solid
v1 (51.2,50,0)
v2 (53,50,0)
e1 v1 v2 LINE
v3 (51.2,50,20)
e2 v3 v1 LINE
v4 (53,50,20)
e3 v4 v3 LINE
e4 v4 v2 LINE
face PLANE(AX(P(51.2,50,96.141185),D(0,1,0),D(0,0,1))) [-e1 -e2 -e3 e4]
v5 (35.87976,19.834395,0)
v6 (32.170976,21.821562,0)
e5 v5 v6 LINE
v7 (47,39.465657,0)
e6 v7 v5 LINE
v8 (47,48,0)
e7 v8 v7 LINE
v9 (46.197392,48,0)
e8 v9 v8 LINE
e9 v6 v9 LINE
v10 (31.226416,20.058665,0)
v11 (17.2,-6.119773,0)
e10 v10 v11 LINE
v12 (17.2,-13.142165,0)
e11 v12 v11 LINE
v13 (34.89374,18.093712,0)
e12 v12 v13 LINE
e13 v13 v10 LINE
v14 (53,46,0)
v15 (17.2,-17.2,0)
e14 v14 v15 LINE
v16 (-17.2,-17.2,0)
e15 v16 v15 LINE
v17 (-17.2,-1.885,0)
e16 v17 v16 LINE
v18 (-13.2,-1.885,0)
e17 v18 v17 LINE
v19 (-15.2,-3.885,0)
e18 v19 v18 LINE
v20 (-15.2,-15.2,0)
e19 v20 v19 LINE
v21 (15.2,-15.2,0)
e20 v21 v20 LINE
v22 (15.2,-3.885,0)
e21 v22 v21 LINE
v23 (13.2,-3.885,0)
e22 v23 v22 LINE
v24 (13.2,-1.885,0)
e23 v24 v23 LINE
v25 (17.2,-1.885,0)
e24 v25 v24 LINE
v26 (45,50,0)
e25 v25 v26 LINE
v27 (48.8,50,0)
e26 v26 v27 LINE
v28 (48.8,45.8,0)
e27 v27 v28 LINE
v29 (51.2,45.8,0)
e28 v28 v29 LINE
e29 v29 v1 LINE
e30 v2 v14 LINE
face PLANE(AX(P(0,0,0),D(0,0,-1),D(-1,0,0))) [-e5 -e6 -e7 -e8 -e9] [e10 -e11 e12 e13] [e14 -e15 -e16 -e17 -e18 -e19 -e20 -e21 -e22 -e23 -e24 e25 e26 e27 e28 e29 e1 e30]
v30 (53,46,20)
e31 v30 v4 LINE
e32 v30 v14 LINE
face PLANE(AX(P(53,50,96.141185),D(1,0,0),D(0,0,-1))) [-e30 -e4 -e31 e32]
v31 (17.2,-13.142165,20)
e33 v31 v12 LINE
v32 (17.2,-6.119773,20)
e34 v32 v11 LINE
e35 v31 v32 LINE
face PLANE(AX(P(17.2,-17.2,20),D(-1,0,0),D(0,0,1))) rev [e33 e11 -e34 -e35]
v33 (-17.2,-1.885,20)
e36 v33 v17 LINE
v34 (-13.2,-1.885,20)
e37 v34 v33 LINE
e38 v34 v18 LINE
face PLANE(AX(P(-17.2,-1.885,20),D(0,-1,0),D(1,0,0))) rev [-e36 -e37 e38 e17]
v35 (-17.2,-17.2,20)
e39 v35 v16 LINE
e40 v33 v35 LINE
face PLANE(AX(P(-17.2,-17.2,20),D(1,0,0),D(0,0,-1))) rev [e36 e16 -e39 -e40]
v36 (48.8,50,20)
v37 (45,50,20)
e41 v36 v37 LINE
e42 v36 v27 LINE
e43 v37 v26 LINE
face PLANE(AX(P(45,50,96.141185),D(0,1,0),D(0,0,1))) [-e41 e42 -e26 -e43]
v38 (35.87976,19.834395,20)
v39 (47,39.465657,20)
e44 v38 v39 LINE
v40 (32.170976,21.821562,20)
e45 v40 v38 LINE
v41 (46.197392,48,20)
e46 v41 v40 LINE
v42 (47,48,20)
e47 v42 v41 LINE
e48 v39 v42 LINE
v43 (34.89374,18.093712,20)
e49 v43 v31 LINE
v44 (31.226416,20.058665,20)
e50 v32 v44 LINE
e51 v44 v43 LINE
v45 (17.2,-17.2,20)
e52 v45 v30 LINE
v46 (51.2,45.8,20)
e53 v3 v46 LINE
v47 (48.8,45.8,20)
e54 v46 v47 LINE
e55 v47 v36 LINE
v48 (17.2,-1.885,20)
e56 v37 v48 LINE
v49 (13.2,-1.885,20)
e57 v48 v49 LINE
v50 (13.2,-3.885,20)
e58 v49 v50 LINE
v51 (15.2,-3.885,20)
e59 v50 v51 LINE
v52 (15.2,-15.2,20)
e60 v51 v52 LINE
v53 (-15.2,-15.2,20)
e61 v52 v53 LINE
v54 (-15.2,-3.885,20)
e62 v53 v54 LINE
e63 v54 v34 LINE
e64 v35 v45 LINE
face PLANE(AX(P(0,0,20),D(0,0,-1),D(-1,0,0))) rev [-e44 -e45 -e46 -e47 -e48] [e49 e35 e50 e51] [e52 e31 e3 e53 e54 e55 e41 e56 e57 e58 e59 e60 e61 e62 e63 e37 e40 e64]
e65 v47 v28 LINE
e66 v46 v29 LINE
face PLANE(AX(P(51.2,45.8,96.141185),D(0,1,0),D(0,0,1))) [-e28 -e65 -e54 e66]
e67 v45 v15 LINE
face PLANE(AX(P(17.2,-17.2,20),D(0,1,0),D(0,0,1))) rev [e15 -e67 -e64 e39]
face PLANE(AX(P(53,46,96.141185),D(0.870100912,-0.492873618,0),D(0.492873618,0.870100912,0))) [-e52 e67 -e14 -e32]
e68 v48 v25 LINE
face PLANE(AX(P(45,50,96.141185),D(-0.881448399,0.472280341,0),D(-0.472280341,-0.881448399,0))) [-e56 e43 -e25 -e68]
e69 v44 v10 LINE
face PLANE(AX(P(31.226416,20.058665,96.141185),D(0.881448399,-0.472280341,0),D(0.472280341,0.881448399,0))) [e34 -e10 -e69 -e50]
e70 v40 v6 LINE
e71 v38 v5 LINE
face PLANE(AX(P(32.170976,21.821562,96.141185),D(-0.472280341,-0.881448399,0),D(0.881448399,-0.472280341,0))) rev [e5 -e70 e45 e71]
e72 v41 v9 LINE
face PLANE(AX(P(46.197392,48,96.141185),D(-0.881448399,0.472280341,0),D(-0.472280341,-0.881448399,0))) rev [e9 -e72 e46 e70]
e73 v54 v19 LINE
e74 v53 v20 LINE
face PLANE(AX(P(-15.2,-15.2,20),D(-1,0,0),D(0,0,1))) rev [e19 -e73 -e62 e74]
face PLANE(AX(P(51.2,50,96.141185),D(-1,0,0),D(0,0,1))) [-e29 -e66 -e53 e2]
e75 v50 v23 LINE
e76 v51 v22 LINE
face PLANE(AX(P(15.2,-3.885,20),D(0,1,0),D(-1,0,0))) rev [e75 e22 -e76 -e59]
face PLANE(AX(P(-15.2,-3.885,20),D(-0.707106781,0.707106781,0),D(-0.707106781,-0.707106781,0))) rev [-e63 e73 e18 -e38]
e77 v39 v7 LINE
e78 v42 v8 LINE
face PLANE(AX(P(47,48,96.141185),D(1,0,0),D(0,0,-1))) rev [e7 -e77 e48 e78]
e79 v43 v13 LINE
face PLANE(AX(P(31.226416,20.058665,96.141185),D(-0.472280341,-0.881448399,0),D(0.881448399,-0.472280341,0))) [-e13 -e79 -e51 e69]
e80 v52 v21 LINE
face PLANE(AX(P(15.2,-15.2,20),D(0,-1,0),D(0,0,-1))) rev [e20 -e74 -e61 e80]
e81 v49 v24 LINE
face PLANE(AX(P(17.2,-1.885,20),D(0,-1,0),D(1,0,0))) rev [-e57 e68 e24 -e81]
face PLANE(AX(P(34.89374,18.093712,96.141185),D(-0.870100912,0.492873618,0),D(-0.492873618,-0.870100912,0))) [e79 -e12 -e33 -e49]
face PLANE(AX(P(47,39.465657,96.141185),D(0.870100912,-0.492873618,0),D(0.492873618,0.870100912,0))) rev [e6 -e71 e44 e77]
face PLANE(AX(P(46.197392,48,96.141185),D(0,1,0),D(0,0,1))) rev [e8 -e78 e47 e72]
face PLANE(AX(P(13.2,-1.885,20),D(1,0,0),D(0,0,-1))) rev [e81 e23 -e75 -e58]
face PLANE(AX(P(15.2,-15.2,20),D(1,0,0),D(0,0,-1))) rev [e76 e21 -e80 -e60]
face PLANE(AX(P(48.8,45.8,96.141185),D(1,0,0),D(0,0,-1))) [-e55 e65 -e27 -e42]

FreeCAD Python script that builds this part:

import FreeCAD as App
import Part
import Sketcher

doc = App.newDocument("Part")
params = doc.addObject("Spreadsheet::Sheet", "Params")
for row, (alias, value) in enumerate([
    ("sketch1_width", "4 mm"),
    ("sketch1_width2", "2 mm"),
    ("sketch1_width3", "34.4 mm"),
    ("pad1_length", "20 mm"),
    ("sketch2_height", "4 mm"),
    ("sketch2_width", "3.8 mm"),
    ("sketch2_width2", "2.4 mm"),
    ("sketch2_width3", "1.8 mm"),
    ("sketch2_height2", "4.2 mm"),
    ("pad2_length", "20 mm"),
], start=1):
    params.set(f"A{row}", alias)
    params.set(f"B{row}", "=" + value)
    params.setAlias(f"B{row}", alias)

body = doc.addObject("PartDesign::Body", "Body")

# Sketch on XY plane
sketch1 = body.newObject("Sketcher::SketchObject", "Sketch")
sketch1.AttachmentSupport = (doc.getObject("XY_Plane"), [""])
sketch1.MapMode = "FlatFace"
sketch1.addGeometry([
    Part.LineSegment(App.Vector(-15.2, -15.2, 0), App.Vector(-15.2, -3.9, 0)),  # 0
    Part.LineSegment(App.Vector(-15.2, -3.9, 0), App.Vector(-13.2, -1.9, 0)),  # 1
    Part.LineSegment(App.Vector(-13.2, -1.9, 0), App.Vector(-17.2, -1.9, 0)),  # 2
    Part.LineSegment(App.Vector(-17.2, -1.9, 0), App.Vector(-17.2, -17.2, 0)),  # 3
    Part.LineSegment(App.Vector(-17.2, -17.2, 0), App.Vector(17.2, -17.2, 0)),  # 4
    Part.LineSegment(App.Vector(17.2, -17.2, 0), App.Vector(17.2, -1.9, 0)),  # 5
    Part.LineSegment(App.Vector(17.2, -1.9, 0), App.Vector(13.2, -1.9, 0)),  # 6
    Part.LineSegment(App.Vector(13.2, -1.9, 0), App.Vector(13.2, -3.9, 0)),  # 7
    Part.LineSegment(App.Vector(13.2, -3.9, 0), App.Vector(15.2, -3.9, 0)),  # 8
    Part.LineSegment(App.Vector(15.2, -3.9, 0), App.Vector(15.2, -15.2, 0)),  # 9
    Part.LineSegment(App.Vector(15.2, -15.2, 0), App.Vector(-15.2, -15.2, 0)),  # 10
], False)
sketch1.addConstraint([
    Sketcher.Constraint("Coincident", 0, 2, 1, 1),
    Sketcher.Constraint("Coincident", 1, 2, 2, 1),
    Sketcher.Constraint("Coincident", 2, 2, 3, 1),
    Sketcher.Constraint("Coincident", 3, 2, 4, 1),
    Sketcher.Constraint("Coincident", 4, 2, 5, 1),
    Sketcher.Constraint("Coincident", 5, 2, 6, 1),
    Sketcher.Constraint("Coincident", 6, 2, 7, 1),
    Sketcher.Constraint("Coincident", 7, 2, 8, 1),
    Sketcher.Constraint("Coincident", 8, 2, 9, 1),
    Sketcher.Constraint("Coincident", 9, 2, 10, 1),
    Sketcher.Constraint("Coincident", 10, 2, 0, 1),
    Sketcher.Constraint("Vertical", 0),
    Sketcher.Constraint("Horizontal", 2),
    Sketcher.Constraint("Vertical", 3),
    Sketcher.Constraint("Horizontal", 4),
    Sketcher.Constraint("Vertical", 5),
    Sketcher.Constraint("Horizontal", 6),
    Sketcher.Constraint("Vertical", 7),
    Sketcher.Constraint("Horizontal", 8),
    Sketcher.Constraint("Vertical", 9),
    Sketcher.Constraint("Horizontal", 10),
    Sketcher.Constraint("Symmetric", 2, 2, 5, 2, -2),
    Sketcher.Constraint("Symmetric", 0, 2, 8, 2, -2),
    Sketcher.Constraint("Equal", 2, 6),
    Sketcher.Constraint("Equal", 8, 7),
    Sketcher.Constraint("DistanceX", 2, 2, 2, 1, 4.0),
    Sketcher.Constraint("DistanceX", 8, 1, 8, 2, 2.0),
    Sketcher.Constraint("DistanceX", 4, 1, 4, 2, 34.4),
    Sketcher.Constraint("DistanceY", 4, 2, 9, 2, 2.0),
    Sketcher.Constraint("DistanceY", 3, 2, -1, 1, 17.2),
    Sketcher.Constraint("DistanceY", 0, 1, 0, 2, 11.315),
])
sketch1.setExpression("Constraints[25]", "Params.sketch1_width")
sketch1.setExpression("Constraints[26]", "Params.sketch1_width2")
sketch1.setExpression("Constraints[27]", "Params.sketch1_width3")
pad1 = body.newObject("PartDesign::Pad", "Pad")
pad1.Profile = sketch1
pad1.setExpression("Length", "Params.pad1_length")

# Sketch on XY plane
sketch2 = body.newObject("Sketcher::SketchObject", "Sketch001")
sketch2.AttachmentSupport = (doc.getObject("XY_Plane"), [""])
sketch2.MapMode = "FlatFace"
sketch2.addGeometry([
    Part.LineSegment(App.Vector(17.2, -1.9, 0), App.Vector(45, 50, 0)),  # 0
    Part.LineSegment(App.Vector(45, 50, 0), App.Vector(48.8, 50, 0)),  # 1
    Part.LineSegment(App.Vector(48.8, 50, 0), App.Vector(48.8, 45.8, 0)),  # 2
    Part.LineSegment(App.Vector(48.8, 45.8, 0), App.Vector(51.2, 45.8, 0)),  # 3
    Part.LineSegment(App.Vector(51.2, 45.8, 0), App.Vector(51.2, 50, 0)),  # 4
    Part.LineSegment(App.Vector(51.2, 50, 0), App.Vector(53, 50, 0)),  # 5
    Part.LineSegment(App.Vector(53, 50, 0), App.Vector(53, 46, 0)),  # 6
    Part.LineSegment(App.Vector(53, 46, 0), App.Vector(17.2, -17.2, 0)),  # 7
    Part.LineSegment(App.Vector(17.2, -17.2, 0), App.Vector(17.2, -13.1, 0)),  # 8
    Part.LineSegment(App.Vector(17.2, -13.1, 0), App.Vector(34.9, 18.1, 0)),  # 9
    Part.LineSegment(App.Vector(34.9, 18.1, 0), App.Vector(31.2, 20.1, 0)),  # 10
    Part.LineSegment(App.Vector(31.2, 20.1, 0), App.Vector(17.2, -6.1, 0)),  # 11
    Part.LineSegment(App.Vector(17.2, -6.1, 0), App.Vector(17.2, -1.9, 0)),  # 12
    Part.LineSegment(App.Vector(46.2, 48, 0), App.Vector(32.2, 21.8, 0)),  # 13
    Part.LineSegment(App.Vector(32.2, 21.8, 0), App.Vector(35.9, 19.8, 0)),  # 14
    Part.LineSegment(App.Vector(35.9, 19.8, 0), App.Vector(47, 39.5, 0)),  # 15
    Part.LineSegment(App.Vector(47, 39.5, 0), App.Vector(47, 48, 0)),  # 16
    Part.LineSegment(App.Vector(47, 48, 0), App.Vector(46.2, 48, 0)),  # 17
], False)
sketch2.addConstraint([
    Sketcher.Constraint("Coincident", 0, 2, 1, 1),
    Sketcher.Constraint("Coincident", 1, 2, 2, 1),
    Sketcher.Constraint("Coincident", 2, 2, 3, 1),
    Sketcher.Constraint("Coincident", 3, 2, 4, 1),
    Sketcher.Constraint("Coincident", 4, 2, 5, 1),
    Sketcher.Constraint("Coincident", 5, 2, 6, 1),
    Sketcher.Constraint("Coincident", 6, 2, 7, 1),
    Sketcher.Constraint("Coincident", 7, 2, 8, 1),
    Sketcher.Constraint("Coincident", 8, 2, 9, 1),
    Sketcher.Constraint("Coincident", 9, 2, 10, 1),
    Sketcher.Constraint("Coincident", 10, 2, 11, 1),
    Sketcher.Constraint("Coincident", 11, 2, 12, 1),
    Sketcher.Constraint("Coincident", 12, 2, 0, 1),
    Sketcher.Constraint("Coincident", 13, 2, 14, 1),
    Sketcher.Constraint("Coincident", 14, 2, 15, 1),
    Sketcher.Constraint("Coincident", 15, 2, 16, 1),
    Sketcher.Constraint("Coincident", 16, 2, 17, 1),
    Sketcher.Constraint("Coincident", 17, 2, 13, 1),
    Sketcher.Constraint("Horizontal", 1),
    Sketcher.Constraint("Vertical", 2),
    Sketcher.Constraint("Horizontal", 3),
    Sketcher.Constraint("Vertical", 4),
    Sketcher.Constraint("Horizontal", 5),
    Sketcher.Constraint("Vertical", 6),
    Sketcher.Constraint("Vertical", 8),
    Sketcher.Constraint("Vertical", 12),
    Sketcher.Constraint("Vertical", 16),
    Sketcher.Constraint("Horizontal", 17),
    Sketcher.Constraint("Parallel", 7, 9),
    Sketcher.Constraint("Perpendicular", 0, 10),
    Sketcher.Constraint("Perpendicular", 10, 11),
    Sketcher.Constraint("Parallel", 11, 13),
    Sketcher.Constraint("Perpendicular", 13, 14),
    Sketcher.Constraint("Parallel", 9, 15),
    Sketcher.Constraint("Horizontal", 1, 2, 4, 2),
    Sketcher.Constraint("Vertical", 8, 2, 11, 2),
    Sketcher.Constraint("Equal", 11, 13),
    Sketcher.Constraint("DistanceY", 6, 2, 6, 1, 4.0),
    Sketcher.Constraint("DistanceX", 1, 1, 1, 2, 3.8),
    Sketcher.Constraint("DistanceX", 3, 1, 3, 2, 2.4),
    Sketcher.Constraint("DistanceX", 5, 1, 5, 2, 1.8),
    Sketcher.Constraint("DistanceY", 2, 2, 2, 1, 4.2),
    Sketcher.Constraint("DistanceX", -1, 1, 0, 2, 45.0),
    Sketcher.Constraint("DistanceY", -1, 1, 0, 2, 50.0),
    Sketcher.Constraint("DistanceX", -1, 1, 15, 2, 47.0),
    Sketcher.Constraint("DistanceY", -1, 1, 16, 2, 48.0),
    Sketcher.Constraint("DistanceY", 7, 2, 2, 2, 63.0),
    Sketcher.Constraint("DistanceX", 7, 2, 3, 2, 34.0),
    Sketcher.Constraint("DistanceY", 12, 2, -1, 1, 1.885),
    Sketcher.Constraint("Distance", 14, 4.207601),
    Sketcher.Constraint("DistanceX", 17, 2, 17, 1, 0.802608),
    Sketcher.Constraint("DistanceY", 8, 1, 8, 2, 4.057835),
    Sketcher.Constraint("DistanceY", 12, 1, 12, 2, 4.234773),
    Sketcher.Constraint("DistanceY", 16, 1, 16, 2, 8.534343),
])
sketch2.setExpression("Constraints[37]", "Params.sketch2_height")
sketch2.setExpression("Constraints[38]", "Params.sketch2_width")
sketch2.setExpression("Constraints[39]", "Params.sketch2_width2")
sketch2.setExpression("Constraints[40]", "Params.sketch2_width3")
sketch2.setExpression("Constraints[41]", "Params.sketch2_height2")
pad2 = body.newObject("PartDesign::Pad", "Pad001")
pad2.Profile = sketch2
pad2.setExpression("Length", "Params.pad2_length")

doc.recompute()
